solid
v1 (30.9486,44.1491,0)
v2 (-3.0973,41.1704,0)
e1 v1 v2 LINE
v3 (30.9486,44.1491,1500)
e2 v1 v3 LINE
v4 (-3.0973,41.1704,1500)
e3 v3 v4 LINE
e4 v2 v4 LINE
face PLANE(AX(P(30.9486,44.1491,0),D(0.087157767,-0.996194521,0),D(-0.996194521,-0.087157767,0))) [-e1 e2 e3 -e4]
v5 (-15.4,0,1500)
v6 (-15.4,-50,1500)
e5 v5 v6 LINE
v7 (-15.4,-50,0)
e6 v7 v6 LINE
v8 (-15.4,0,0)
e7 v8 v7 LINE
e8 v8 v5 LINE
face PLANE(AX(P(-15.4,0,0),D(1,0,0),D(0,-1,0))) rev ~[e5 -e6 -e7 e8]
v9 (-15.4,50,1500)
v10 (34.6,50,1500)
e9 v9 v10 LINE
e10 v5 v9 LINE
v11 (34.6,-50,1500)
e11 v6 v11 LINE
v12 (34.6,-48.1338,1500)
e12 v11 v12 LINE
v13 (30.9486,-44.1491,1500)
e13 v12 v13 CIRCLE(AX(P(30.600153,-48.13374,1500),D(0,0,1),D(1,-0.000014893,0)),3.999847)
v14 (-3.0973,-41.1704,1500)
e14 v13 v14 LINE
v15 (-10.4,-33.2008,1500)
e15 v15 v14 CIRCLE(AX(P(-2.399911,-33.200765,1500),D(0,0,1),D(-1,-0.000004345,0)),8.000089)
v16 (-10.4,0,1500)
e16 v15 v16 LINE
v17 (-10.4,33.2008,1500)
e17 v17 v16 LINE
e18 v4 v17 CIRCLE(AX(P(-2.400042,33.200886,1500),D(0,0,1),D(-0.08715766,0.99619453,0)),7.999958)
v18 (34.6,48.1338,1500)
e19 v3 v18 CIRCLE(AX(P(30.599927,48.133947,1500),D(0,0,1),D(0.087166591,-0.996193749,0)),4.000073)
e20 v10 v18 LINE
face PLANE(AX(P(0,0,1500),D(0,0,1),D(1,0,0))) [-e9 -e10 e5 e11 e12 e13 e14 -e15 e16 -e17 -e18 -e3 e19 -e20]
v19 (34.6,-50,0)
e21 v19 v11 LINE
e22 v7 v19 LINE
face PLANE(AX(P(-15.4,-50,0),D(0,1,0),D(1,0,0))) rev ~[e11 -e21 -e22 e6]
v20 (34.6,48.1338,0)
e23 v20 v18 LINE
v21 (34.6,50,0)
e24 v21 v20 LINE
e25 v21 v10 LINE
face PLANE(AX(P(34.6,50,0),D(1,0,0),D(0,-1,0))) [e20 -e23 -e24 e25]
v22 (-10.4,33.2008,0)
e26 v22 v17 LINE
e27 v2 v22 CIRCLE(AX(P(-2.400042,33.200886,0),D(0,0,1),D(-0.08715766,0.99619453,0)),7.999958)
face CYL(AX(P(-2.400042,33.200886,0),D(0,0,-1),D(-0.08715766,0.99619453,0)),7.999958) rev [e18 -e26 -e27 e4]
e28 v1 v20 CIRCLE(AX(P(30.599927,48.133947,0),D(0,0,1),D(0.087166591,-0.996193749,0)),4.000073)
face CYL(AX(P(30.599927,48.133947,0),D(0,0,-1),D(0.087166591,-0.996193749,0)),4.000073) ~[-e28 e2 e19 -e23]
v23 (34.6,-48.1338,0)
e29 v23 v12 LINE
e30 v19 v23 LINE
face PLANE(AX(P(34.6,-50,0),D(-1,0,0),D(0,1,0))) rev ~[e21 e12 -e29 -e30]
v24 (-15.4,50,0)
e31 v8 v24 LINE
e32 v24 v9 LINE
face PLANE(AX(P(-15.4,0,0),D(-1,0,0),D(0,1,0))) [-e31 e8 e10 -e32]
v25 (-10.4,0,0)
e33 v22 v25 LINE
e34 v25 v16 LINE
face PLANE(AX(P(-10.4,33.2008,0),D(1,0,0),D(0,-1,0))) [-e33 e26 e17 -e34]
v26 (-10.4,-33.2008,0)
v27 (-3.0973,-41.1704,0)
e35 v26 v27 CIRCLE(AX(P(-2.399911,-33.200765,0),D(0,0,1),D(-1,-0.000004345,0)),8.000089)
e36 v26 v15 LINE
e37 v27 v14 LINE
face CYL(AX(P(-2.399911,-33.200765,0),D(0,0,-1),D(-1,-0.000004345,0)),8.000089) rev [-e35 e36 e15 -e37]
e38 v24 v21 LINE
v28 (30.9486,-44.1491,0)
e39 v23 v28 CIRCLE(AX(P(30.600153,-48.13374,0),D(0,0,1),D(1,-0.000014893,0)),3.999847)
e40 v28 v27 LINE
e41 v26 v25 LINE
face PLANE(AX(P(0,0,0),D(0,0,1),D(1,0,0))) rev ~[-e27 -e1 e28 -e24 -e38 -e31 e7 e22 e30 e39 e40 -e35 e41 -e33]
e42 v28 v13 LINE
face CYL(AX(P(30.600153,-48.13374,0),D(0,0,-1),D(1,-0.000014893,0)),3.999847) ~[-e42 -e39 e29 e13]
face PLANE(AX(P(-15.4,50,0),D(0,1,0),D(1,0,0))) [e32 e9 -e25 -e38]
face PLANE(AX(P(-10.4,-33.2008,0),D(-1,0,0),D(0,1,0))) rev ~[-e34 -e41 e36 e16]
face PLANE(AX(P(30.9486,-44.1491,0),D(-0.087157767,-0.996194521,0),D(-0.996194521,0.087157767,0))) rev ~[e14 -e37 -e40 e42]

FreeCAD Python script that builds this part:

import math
import FreeCAD as App
import Part
import Sketcher

V = App.Vector
Q = App.Units.Quantity

doc = App.newDocument("Part")
body = doc.addObject("PartDesign::Body", "Body")

# Sketch on XY plane
sketch1 = doc.addObject("Sketcher::SketchObject", "Sketch")
body.addObject(sketch1)
sketch1.AttachmentSupport = (doc.XY_Plane, [""])
sketch1.MapMode = "FlatFace"
sketch1.addGeometry([
    Part.LineSegment(V(-15.4, 50, 0), V(-15.4, -50, 0)),  # 0
    Part.LineSegment(V(-15.4, -50, 0), V(34.6, -50, 0)),  # 1
    Part.LineSegment(V(34.6, -50, 0), V(34.6, -48.1, 0)),  # 2
    Part.ArcOfCircle(Part.Circle(V(30.6, -48.1, 0), V(0, 0, 1), 4), math.radians(0), math.radians(85)),  # 3
    Part.LineSegment(V(30.9, -44.1, 0), V(-3.1, -41.2, 0)),  # 4
    Part.ArcOfCircle(Part.Circle(V(-2.4, -33.2, 0), V(0, 0, 1), 8), math.radians(180), math.radians(265)),  # 5
    Part.LineSegment(V(-10.4, -33.2, 0), V(-10.4, 33.2, 0)),  # 6
    Part.ArcOfCircle(Part.Circle(V(-2.4, 33.2, 0), V(0, 0, 1), 8), math.radians(95), math.radians(180)),  # 7
    Part.LineSegment(V(-3.1, 41.2, 0), V(30.9, 44.1, 0)),  # 8
    Part.ArcOfCircle(Part.Circle(V(30.6, 48.1, 0), V(0, 0, 1), 4), math.radians(-85), math.radians(0)),  # 9
    Part.LineSegment(V(34.6, 48.1, 0), V(34.6, 50, 0)),  # 10
    Part.LineSegment(V(34.6, 50, 0), V(-15.4, 50, 0)),  # 11
], False)
sketch1.addConstraint([
    Sketcher.Constraint("Coincident", 0, 2, 1, 1),
    Sketcher.Constraint("Coincident", 1, 2, 2, 1),
    Sketcher.Constraint("Tangent", 2, 2, 3, 1),
    Sketcher.Constraint("Tangent", 3, 2, 4, 1),
    Sketcher.Constraint("Tangent", 4, 2, 5, 2),
    Sketcher.Constraint("Tangent", 5, 1, 6, 1),
    Sketcher.Constraint("Tangent", 6, 2, 7, 2),
    Sketcher.Constraint("Tangent", 7, 1, 8, 1),
    Sketcher.Constraint("Tangent", 8, 2, 9, 1),
    Sketcher.Constraint("Tangent", 9, 2, 10, 1),
    Sketcher.Constraint("Coincident", 10, 2, 11, 1),
    Sketcher.Constraint("Coincident", 11, 2, 0, 1),
    Sketcher.Constraint("Vertical", 0),
    Sketcher.Constraint("Horizontal", 1),
    Sketcher.Constraint("Vertical", 2),
    Sketcher.Constraint("Vertical", 6),
    Sketcher.Constraint("Vertical", 10),
    Sketcher.Constraint("Horizontal", 11),
    Sketcher.Constraint("Equal", 5, 7),
    Sketcher.Constraint("Equal", 3, 9),
    Sketcher.Constraint("Symmetric", 3, 3, 9, 3, -1),
    Sketcher.Constraint("Vertical", 4, 2, 7, 1),
    Sketcher.Constraint("Equal", 2, 10),
    Sketcher.Constraint("Radius", 3, Q("4 mm")),
    Sketcher.Constraint("Radius", 5, Q("8 mm")),
    Sketcher.Constraint("DistanceX", 1, 1, 1, 2, Q("50 mm")),
    Sketcher.Constraint("Angle", 8, Q("5 deg")),
    Sketcher.Constraint("DistanceY", 0, 2, -1, 1, Q("50 mm")),
    Sketcher.Constraint("DistanceX", 0, 2, 5, 1, Q("5 mm")),
    Sketcher.Constraint("DistanceX", 0, 2, -1, 1, Q("15.4 mm")),
    Sketcher.Constraint("DistanceY", 5, 3, 8, 2, Q("77.35 mm")),
])
pad1 = doc.addObject("PartDesign::Pad", "Pad")
body.addObject(pad1)
pad1.Profile = sketch1
pad1.Length = 1500

doc.recompute()
